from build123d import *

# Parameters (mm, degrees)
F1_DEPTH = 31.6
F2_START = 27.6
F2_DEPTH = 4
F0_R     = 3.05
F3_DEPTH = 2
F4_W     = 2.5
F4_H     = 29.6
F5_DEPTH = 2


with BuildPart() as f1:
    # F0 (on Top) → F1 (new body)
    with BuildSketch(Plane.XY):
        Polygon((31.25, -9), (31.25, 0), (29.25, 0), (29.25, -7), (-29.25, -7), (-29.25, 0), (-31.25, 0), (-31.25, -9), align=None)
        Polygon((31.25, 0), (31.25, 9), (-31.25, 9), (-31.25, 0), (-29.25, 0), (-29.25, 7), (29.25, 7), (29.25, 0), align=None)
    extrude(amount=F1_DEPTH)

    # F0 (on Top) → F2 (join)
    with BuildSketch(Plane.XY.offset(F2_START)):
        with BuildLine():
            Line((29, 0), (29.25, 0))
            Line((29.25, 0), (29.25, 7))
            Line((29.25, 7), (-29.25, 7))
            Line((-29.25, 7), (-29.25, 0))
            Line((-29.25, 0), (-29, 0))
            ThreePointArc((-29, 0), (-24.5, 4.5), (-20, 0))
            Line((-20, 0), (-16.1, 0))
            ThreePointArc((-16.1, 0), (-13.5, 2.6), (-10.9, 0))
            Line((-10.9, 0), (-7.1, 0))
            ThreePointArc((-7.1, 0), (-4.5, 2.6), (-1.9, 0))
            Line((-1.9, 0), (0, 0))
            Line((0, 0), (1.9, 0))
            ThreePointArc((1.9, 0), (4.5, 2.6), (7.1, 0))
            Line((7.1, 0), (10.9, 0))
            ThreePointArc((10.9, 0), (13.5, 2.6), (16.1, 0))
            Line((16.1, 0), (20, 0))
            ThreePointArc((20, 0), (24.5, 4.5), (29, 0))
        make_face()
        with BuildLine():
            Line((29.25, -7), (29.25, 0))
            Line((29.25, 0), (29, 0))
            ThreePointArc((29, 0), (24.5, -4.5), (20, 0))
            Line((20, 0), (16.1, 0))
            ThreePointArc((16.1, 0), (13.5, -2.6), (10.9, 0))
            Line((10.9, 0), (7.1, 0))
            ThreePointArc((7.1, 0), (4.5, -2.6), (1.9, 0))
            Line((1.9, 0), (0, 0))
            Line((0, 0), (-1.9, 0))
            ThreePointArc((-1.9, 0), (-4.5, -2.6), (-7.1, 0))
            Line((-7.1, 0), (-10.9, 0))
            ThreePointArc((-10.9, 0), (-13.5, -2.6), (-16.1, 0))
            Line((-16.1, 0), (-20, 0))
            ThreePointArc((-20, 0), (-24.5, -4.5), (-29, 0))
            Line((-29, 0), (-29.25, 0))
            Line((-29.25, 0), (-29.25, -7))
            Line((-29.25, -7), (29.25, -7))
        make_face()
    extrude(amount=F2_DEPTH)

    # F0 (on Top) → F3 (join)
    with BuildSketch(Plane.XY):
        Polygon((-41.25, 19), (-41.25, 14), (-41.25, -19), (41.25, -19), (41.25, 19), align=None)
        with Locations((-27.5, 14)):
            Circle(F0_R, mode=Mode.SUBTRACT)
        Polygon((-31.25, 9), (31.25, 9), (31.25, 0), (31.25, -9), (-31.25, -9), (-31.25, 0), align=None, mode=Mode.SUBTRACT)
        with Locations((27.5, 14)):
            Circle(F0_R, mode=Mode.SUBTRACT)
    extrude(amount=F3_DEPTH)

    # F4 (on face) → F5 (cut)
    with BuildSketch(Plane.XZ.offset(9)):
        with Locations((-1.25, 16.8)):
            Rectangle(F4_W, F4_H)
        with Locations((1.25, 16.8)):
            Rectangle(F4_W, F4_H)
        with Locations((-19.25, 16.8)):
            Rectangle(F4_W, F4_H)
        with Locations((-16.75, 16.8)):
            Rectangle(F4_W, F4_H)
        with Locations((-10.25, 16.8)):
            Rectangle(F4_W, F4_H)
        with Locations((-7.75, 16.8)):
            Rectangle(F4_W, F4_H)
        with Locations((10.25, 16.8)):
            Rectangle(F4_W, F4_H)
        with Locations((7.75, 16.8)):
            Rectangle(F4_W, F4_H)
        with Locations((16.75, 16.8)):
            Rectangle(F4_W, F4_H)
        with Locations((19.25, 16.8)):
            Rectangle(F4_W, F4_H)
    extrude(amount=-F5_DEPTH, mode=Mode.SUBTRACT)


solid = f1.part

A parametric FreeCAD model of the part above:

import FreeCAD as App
import Part
import Sketcher
from FreeCAD import Vector
Q = App.Units.Quantity

doc = App.newDocument("Part")
body = doc.addObject("PartDesign::Body", "Body")

# Sketch on XY plane
sketch1 = doc.addObject("Sketcher::SketchObject", "Sketch")
body.addObject(sketch1)
sketch1.AttachmentSupport = (doc.XY_Plane, [""])
sketch1.MapMode = "FlatFace"
sketch1.addGeometry([
    Part.LineSegment(Vector(31, -9, 0), Vector(31, 9, 0)),  # 0
    Part.LineSegment(Vector(31, 9, 0), Vector(-31, 9, 0)),  # 1
    Part.LineSegment(Vector(-31, 9, 0), Vector(-31, -9, 0)),  # 2
    Part.LineSegment(Vector(-31, -9, 0), Vector(31, -9, 0)),  # 3
    Part.LineSegment(Vector(29, -7, 0), Vector(-29, -7, 0)),  # 4
    Part.LineSegment(Vector(-29, -7, 0), Vector(-29, 7, 0)),  # 5
    Part.LineSegment(Vector(-29, 7, 0), Vector(29, 7, 0)),  # 6
    Part.LineSegment(Vector(29, 7, 0), Vector(29, -7, 0)),  # 7
], False)
sketch1.addConstraint([
    Sketcher.Constraint("Coincident", 0, 2, 1, 1),
    Sketcher.Constraint("Coincident", 1, 2, 2, 1),
    Sketcher.Constraint("Coincident", 2, 2, 3, 1),
    Sketcher.Constraint("Coincident", 3, 2, 0, 1),
    Sketcher.Constraint("Coincident", 4, 2, 5, 1),
    Sketcher.Constraint("Coincident", 5, 2, 6, 1),
    Sketcher.Constraint("Coincident", 6, 2, 7, 1),
    Sketcher.Constraint("Coincident", 7, 2, 4, 1),
    Sketcher.Constraint("Vertical", 0),
    Sketcher.Constraint("Horizontal", 1),
    Sketcher.Constraint("Vertical", 2),
    Sketcher.Constraint("Horizontal", 3),
    Sketcher.Constraint("Horizontal", 4),
    Sketcher.Constraint("Vertical", 5),
    Sketcher.Constraint("Horizontal", 6),
    Sketcher.Constraint("Vertical", 7),
    Sketcher.Constraint("Symmetric", 0, 2, 2, 2, -1, 1),
    Sketcher.Constraint("Symmetric", 4, 2, 6, 2, -1, 1),
    Sketcher.Constraint("DistanceY", 0, 1, 0, 2, Q("18 mm")),
    Sketcher.Constraint("DistanceY", 5, 1, 5, 2, Q("14 mm")),
    Sketcher.Constraint("DistanceX", 1, 2, 1, 1, Q("62.5 mm")),
    Sketcher.Constraint("DistanceX", 4, 2, 4, 1, Q("58.5 mm")),
])
pad1 = doc.addObject("PartDesign::Pad", "Pad")
body.addObject(pad1)
pad1.Profile = sketch1
pad1.Length = 31.6

# Sketch on XY plane
sketch2 = doc.addObject("Sketcher::SketchObject", "Sketch001")
body.addObject(sketch2)
sketch2.AttachmentSupport = (doc.XY_Plane, [""])
sketch2.MapMode = "FlatFace"
sketch2.AttachmentOffset = App.Placement(Vector(0, 0, 27.6), App.Rotation())
sketch2.addGeometry([
    Part.LineSegment(Vector(29.2, 7, 0), Vector(-29.2, 7, 0)),  # 0
    Part.LineSegment(Vector(-29.2, 7, 0), Vector(-29.2, -7, 0)),  # 1
    Part.LineSegment(Vector(-29.2, -7, 0), Vector(29.2, -7, 0)),  # 2
    Part.LineSegment(Vector(29.2, -7, 0), Vector(29.2, 7, 0)),  # 3
    Part.Circle(Vector(-24.5, 0, 0), Vector(0, 0, 1), 4.5),  # 4
    Part.Circle(Vector(-13.5, 0, 0), Vector(0, 0, 1), 2.6),  # 5
    Part.Circle(Vector(-4.5, 0, 0), Vector(0, 0, 1), 2.6),  # 6
    Part.Circle(Vector(4.5, 0, 0), Vector(0, 0, 1), 2.6),  # 7
    Part.Circle(Vector(13.5, 0, 0), Vector(0, 0, 1), 2.6),  # 8
    Part.Circle(Vector(24.5, 0, 0), Vector(0, 0, 1), 4.5),  # 9
], False)
sketch2.addConstraint([
    Sketcher.Constraint("Coincident", 0, 2, 1, 1),
    Sketcher.Constraint("Coincident", 1, 2, 2, 1),
    Sketcher.Constraint("Coincident", 2, 2, 3, 1),
    Sketcher.Constraint("Coincident", 3, 2, 0, 1),
    Sketcher.Constraint("Horizontal", 0),
    Sketcher.Constraint("Vertical", 1),
    Sketcher.Constraint("Horizontal", 2),
    Sketcher.Constraint("Vertical", 3),
    Sketcher.Constraint("Equal", 5, 6),
    Sketcher.Constraint("Equal", 6, 7),
    Sketcher.Constraint("Equal", 7, 8),
    Sketcher.Constraint("Equal", 4, 9),
    Sketcher.Constraint("Symmetric", 6, 3, 7, 3, -1, 1),
    Sketcher.Constraint("Symmetric", 5, 3, 8, 3, -1, 1),
    Sketcher.Constraint("Symmetric", 4, 3, 9, 3, -1, 1),
    Sketcher.Constraint("Symmetric", 0, 2, 2, 2, -1, 1),
    Sketcher.Constraint("PointOnObject", 4, 3, -1),
    Sketcher.Constraint("PointOnObject", 5, 3, -1),
    Sketcher.Constraint("PointOnObject", 6, 3, -1),
    Sketcher.Constraint("Diameter", 4, Q("9 mm")),
    Sketcher.Constraint("Diameter", 5, Q("5.2 mm")),
    Sketcher.Constraint("DistanceY", 1, 2, 1, 1, Q("14 mm")),
    Sketcher.Constraint("DistanceX", 0, 2, 0, 1, Q("58.5 mm")),
    Sketcher.Constraint("DistanceX", 4, 3, 5, 3, Q("11 mm")),
    Sketcher.Constraint("DistanceX", 5, 3, 6, 3, Q("9 mm")),
    Sketcher.Constraint("DistanceX", 6, 3, 7, 3, Q("9 mm")),
])
pad2 = doc.addObject("PartDesign::Pad", "Pad001")
body.addObject(pad2)
pad2.Profile = sketch2
pad2.Length = 4

# Sketch on XY plane
sketch3 = doc.addObject("Sketcher::SketchObject", "Sketch002")
body.addObject(sketch3)
sketch3.AttachmentSupport = (doc.XY_Plane, [""])
sketch3.MapMode = "FlatFace"
sketch3.addGeometry([
    Part.LineSegment(Vector(-41.2, 19, 0), Vector(-41.2, -19, 0)),  # 0
    Part.LineSegment(Vector(-41.2, -19, 0), Vector(41.2, -19, 0)),  # 1
    Part.LineSegment(Vector(41.2, -19, 0), Vector(41.2, 19, 0)),  # 2
    Part.LineSegment(Vector(41.2, 19, 0), Vector(-41.2, 19, 0)),  # 3
    Part.LineSegment(Vector(-31.2, -9, 0), Vector(-31.2, 9, 0)),  # 4
    Part.LineSegment(Vector(-31.2, 9, 0), Vector(31.2, 9, 0)),  # 5
    Part.LineSegment(Vector(31.2, 9, 0), Vector(31.2, -9, 0)),  # 6
    Part.LineSegment(Vector(31.2, -9, 0), Vector(-31.2, -9, 0)),  # 7
    Part.Circle(Vector(-27.5, 14, 0), Vector(0, 0, 1), 3),  # 8
    Part.Circle(Vector(27.5, 14, 0), Vector(0, 0, 1), 3),  # 9
], False)
sketch3.addConstraint([
    Sketcher.Constraint("Coincident", 0, 2, 1, 1),
    Sketcher.Constraint("Coincident", 1, 2, 2, 1),
    Sketcher.Constraint("Coincident", 2, 2, 3, 1),
    Sketcher.Constraint("Coincident", 3, 2, 0, 1),
    Sketcher.Constraint("Coincident", 4, 2, 5, 1),
    Sketcher.Constraint("Coincident", 5, 2, 6, 1),
    Sketcher.Constraint("Coincident", 6, 2, 7, 1),
    Sketcher.Constraint("Coincident", 7, 2, 4, 1),
    Sketcher.Constraint("Vertical", 0),
    Sketcher.Constraint("Horizontal", 1),
    Sketcher.Constraint("Vertical", 2),
    Sketcher.Constraint("Horizontal", 3),
    Sketcher.Constraint("Vertical", 4),
    Sketcher.Constraint("Horizontal", 5),
    Sketcher.Constraint("Vertical", 6),
    Sketcher.Constraint("Horizontal", 7),
    Sketcher.Constraint("Equal", 8, 9),
    Sketcher.Constraint("Symmetric", 0, 2, 2, 2, -1, 1),
    Sketcher.Constraint("Symmetric", 4, 2, 6, 2, -1, 1),
    Sketcher.Constraint("Symmetric", 8, 3, 9, 3, -2),
    Sketcher.Constraint("Diameter", 8, Q("6.1 mm")),
    Sketcher.Constraint("DistanceY", 0, 2, 0, 1, Q("38 mm")),
    Sketcher.Constraint("DistanceY", 4, 1, 4, 2, Q("18 mm")),
    Sketcher.Constraint("DistanceX", 1, 1, 1, 2, Q("82.5 mm")),
    Sketcher.Constraint("DistanceX", 5, 1, 5, 2, Q("62.5 mm")),
    Sketcher.Constraint("DistanceY", -1, 1, 8, 3, Q("14 mm")),
    Sketcher.Constraint("DistanceX", 8, 3, 9, 3, Q("55 mm")),
])
pad3 = doc.addObject("PartDesign::Pad", "Pad002")
body.addObject(pad3)
pad3.Profile = sketch3
pad3.Length = 2

# Sketch on XZ plane
sketch4 = doc.addObject("Sketcher::SketchObject", "Sketch003")
body.addObject(sketch4)
sketch4.AttachmentSupport = (doc.XZ_Plane, [""])
sketch4.MapMode = "FlatFace"
sketch4.AttachmentOffset = App.Placement(Vector(0, 0, 9), App.Rotation())
sketch4.addGeometry([
    Part.LineSegment(Vector(-2, 32, 0), Vector(-2, 2, 0)),  # 0
    Part.LineSegment(Vector(-2, 2, 0), Vector(2, 2, 0)),  # 1
    Part.LineSegment(Vector(2, 2, 0), Vector(2, 32, 0)),  # 2
    Part.LineSegment(Vector(2, 32, 0), Vector(-2, 32, 0)),  # 3
    Part.LineSegment(Vector(-20, 32, 0), Vector(-20, 2, 0)),  # 4
    Part.LineSegment(Vector(-20, 2, 0), Vector(-16, 2, 0)),  # 5
    Part.LineSegment(Vector(-16, 2, 0), Vector(-16, 32, 0)),  # 6
    Part.LineSegment(Vector(-16, 32, 0), Vector(-20, 32, 0)),  # 7
    Part.LineSegment(Vector(-12, 32, 0), Vector(-12, 2, 0)),  # 8
    Part.LineSegment(Vector(-12, 2, 0), Vector(-6, 2, 0)),  # 9
    Part.LineSegment(Vector(-6, 2, 0), Vector(-6, 32, 0)),  # 10
    Part.LineSegment(Vector(-6, 32, 0), Vector(-12, 32, 0)),  # 11
    Part.LineSegment(Vector(12, 2, 0), Vector(12, 32, 0)),  # 12
    Part.LineSegment(Vector(12, 32, 0), Vector(6, 32, 0)),  # 13
    Part.LineSegment(Vector(6, 32, 0), Vector(6, 2, 0)),  # 14
    Part.LineSegment(Vector(6, 2, 0), Vector(12, 2, 0)),  # 15
    Part.LineSegment(Vector(16, 32, 0), Vector(16, 2, 0)),  # 16
    Part.LineSegment(Vector(16, 2, 0), Vector(20, 2, 0)),  # 17
    Part.LineSegment(Vector(20, 2, 0), Vector(20, 32, 0)),  # 18
    Part.LineSegment(Vector(20, 32, 0), Vector(16, 32, 0)),  # 19
], False)
sketch4.addConstraint([
    Sketcher.Constraint("Coincident", 0, 2, 1, 1),
    Sketcher.Constraint("Coincident", 1, 2, 2, 1),
    Sketcher.Constraint("Coincident", 2, 2, 3, 1),
    Sketcher.Constraint("Coincident", 3, 2, 0, 1),
    Sketcher.Constraint("Coincident", 4, 2, 5, 1),
    Sketcher.Constraint("Coincident", 5, 2, 6, 1),
    Sketcher.Constraint("Coincident", 6, 2, 7, 1),
    Sketcher.Constraint("Coincident", 7, 2, 4, 1),
    Sketcher.Constraint("Coincident", 8, 2, 9, 1),
    Sketcher.Constraint("Coincident", 9, 2, 10, 1),
    Sketcher.Constraint("Coincident", 10, 2, 11, 1),
    Sketcher.Constraint("Coincident", 11, 2, 8, 1),
    Sketcher.Constraint("Coincident", 12, 2, 13, 1),
    Sketcher.Constraint("Coincident", 13, 2, 14, 1),
    Sketcher.Constraint("Coincident", 14, 2, 15, 1),
    Sketcher.Constraint("Coincident", 15, 2, 12, 1),
    Sketcher.Constraint("Coincident", 16, 2, 17, 1),
    Sketcher.Constraint("Coincident", 17, 2, 18, 1),
    Sketcher.Constraint("Coincident", 18, 2, 19, 1),
    Sketcher.Constraint("Coincident", 19, 2, 16, 1),
    Sketcher.Constraint("Vertical", 0),
    Sketcher.Constraint("Horizontal", 1),
    Sketcher.Constraint("Vertical", 2),
    Sketcher.Constraint("Horizontal", 3),
    Sketcher.Constraint("Vertical", 4),
    Sketcher.Constraint("Horizontal", 5),
    Sketcher.Constraint("Vertical", 6),
    Sketcher.Constraint("Horizontal", 7),
    Sketcher.Constraint("Vertical", 8),
    Sketcher.Constraint("Horizontal", 9),
    Sketcher.Constraint("Vertical", 10),
    Sketcher.Constraint("Horizontal", 11),
    Sketcher.Constraint("Vertical", 12),
    Sketcher.Constraint("Horizontal", 13),
    Sketcher.Constraint("Vertical", 14),
    Sketcher.Constraint("Horizontal", 15),
    Sketcher.Constraint("Vertical", 16),
    Sketcher.Constraint("Horizontal", 17),
    Sketcher.Constraint("Vertical", 18),
    Sketcher.Constraint("Horizontal", 19),
    Sketcher.Constraint("Symmetric", 11, 2, 12, 2, -2),
    Sketcher.Constraint("Symmetric", 9, 2, 14, 2, -2),
    Sketcher.Constraint("Symmetric", 5, 2, 16, 2, -2),
    Sketcher.Constraint("Symmetric", 7, 2, 18, 2, -2),
    Sketcher.Constraint("Horizontal", 1, 2, 4, 2),
    Sketcher.Constraint("Horizontal", 3, 2, 6, 2),
    Sketcher.Constraint("Horizontal", 5, 2, 8, 2),
    Sketcher.Constraint("Horizontal", 7, 2, 10, 2),
    Sketcher.Constraint("Equal", 3, 5),
    Sketcher.Constraint("Equal", 7, 9),
    Sketcher.Constraint("DistanceX", 1, 1, 1, 2, Q("5 mm")),
    Sketcher.Constraint("DistanceY", 0, 2, 0, 1, Q("29.6 mm")),
    Sketcher.Constraint("DistanceY", -1, 1, 0, 2, Q("2 mm")),
    Sketcher.Constraint("DistanceX", 4, 2, 0, 2, Q("18 mm")),
    Sketcher.Constraint("DistanceX", 5, 2, 8, 2, Q("4 mm")),
    Sketcher.Constraint("DistanceX", 2, 2, 12, 2, Q("9 mm")),
])
pocket1 = doc.addObject("PartDesign::Pocket", "Pocket")
body.addObject(pocket1)
pocket1.Profile = sketch4
pocket1.Length = 2

doc.recompute()
